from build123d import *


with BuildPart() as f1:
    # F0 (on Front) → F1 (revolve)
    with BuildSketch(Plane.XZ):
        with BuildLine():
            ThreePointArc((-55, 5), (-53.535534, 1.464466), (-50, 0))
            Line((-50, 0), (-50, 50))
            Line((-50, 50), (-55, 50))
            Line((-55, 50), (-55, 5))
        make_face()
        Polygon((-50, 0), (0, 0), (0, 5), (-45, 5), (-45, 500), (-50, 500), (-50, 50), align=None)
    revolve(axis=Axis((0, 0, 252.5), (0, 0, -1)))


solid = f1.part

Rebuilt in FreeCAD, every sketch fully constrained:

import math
import FreeCAD as App
import Part
import Sketcher
Q = App.Units.Quantity

doc = App.newDocument("Part")
params = doc.addObject("Spreadsheet::Sheet", "Params")
for row, (alias, value) in enumerate([
    ("sketch1_radius", "5 mm"),
    ("sketch1_width", "50 mm"),
    ("sketch1_height", "495 mm"),
    ("revolution_angle", "360 deg"),
], start=1):
    params.set(f"A{row}", alias)
    params.set(f"B{row}", "=" + value)
    params.setAlias(f"B{row}", alias)

body = doc.addObject("PartDesign::Body", "Body")

sketch1 = doc.addObject("Sketcher::SketchObject", "Sketch")
body.addObject(sketch1)
sketch1.AttachmentSupport = (doc.XZ_Plane, [""])
sketch1.MapMode = "FlatFace"
sketch1.addGeometry(Part.ArcOfCircle(Part.Circle(App.Vector(-50, 5, 0), App.Vector(0, 0, 1), 5), math.radians(180), math.radians(270)), False)
sketch1.addGeometry(Part.LineSegment(App.Vector(-50, 0, 0), App.Vector(0, 0, 0)), False)
sketch1.addGeometry(Part.LineSegment(App.Vector(0, 0, 0), App.Vector(0, 5, 0)), False)
sketch1.addGeometry(Part.LineSegment(App.Vector(0, 5, 0), App.Vector(-45, 5, 0)), False)
sketch1.addGeometry(Part.LineSegment(App.Vector(-45, 5, 0), App.Vector(-45, 500, 0)), False)
sketch1.addGeometry(Part.LineSegment(App.Vector(-45, 500, 0), App.Vector(-50, 500, 0)), False)
sketch1.addGeometry(Part.LineSegment(App.Vector(-50, 500, 0), App.Vector(-50, 50, 0)), False)
sketch1.addGeometry(Part.LineSegment(App.Vector(-50, 50, 0), App.Vector(-55, 50, 0)), False)
sketch1.addGeometry(Part.LineSegment(App.Vector(-55, 50, 0), App.Vector(-55, 5, 0)), False)
sketch1.addConstraint(Sketcher.Constraint("Tangent", 0, 2, 1, 1))
sketch1.addConstraint(Sketcher.Constraint("Coincident", 1, 2, 2, 1))
sketch1.addConstraint(Sketcher.Constraint("Coincident", 2, 2, 3, 1))
sketch1.addConstraint(Sketcher.Constraint("Coincident", 3, 2, 4, 1))
sketch1.addConstraint(Sketcher.Constraint("Coincident", 4, 2, 5, 1))
sketch1.addConstraint(Sketcher.Constraint("Coincident", 5, 2, 6, 1))
sketch1.addConstraint(Sketcher.Constraint("Coincident", 6, 2, 7, 1))
sketch1.addConstraint(Sketcher.Constraint("Coincident", 7, 2, 8, 1))
sketch1.addConstraint(Sketcher.Constraint("Tangent", 8, 2, 0, 1))
sketch1.addConstraint(Sketcher.Constraint("Horizontal", 1))
sketch1.addConstraint(Sketcher.Constraint("Vertical", 2))
sketch1.addConstraint(Sketcher.Constraint("Horizontal", 3))
sketch1.addConstraint(Sketcher.Constraint("Vertical", 4))
sketch1.addConstraint(Sketcher.Constraint("Horizontal", 5))
sketch1.addConstraint(Sketcher.Constraint("Vertical", 6))
sketch1.addConstraint(Sketcher.Constraint("Horizontal", 7))
sketch1.addConstraint(Sketcher.Constraint("Vertical", 8))
sketch1.addConstraint(Sketcher.Constraint("Coincident", 1, 2, -1, 1))
sketch1.addConstraint(Sketcher.Constraint("Horizontal", 0, 3, 2, 2))
sketch1.addConstraint(Sketcher.Constraint("Vertical", 0, 2, 5, 2))
sketch1.addConstraint(Sketcher.Constraint("Equal", 5, 7))
sketch1.addConstraint(Sketcher.Constraint("Equal", 3, 8))
sketch1.addConstraint(Sketcher.Constraint("Radius", 0, Q("5 mm")))
sketch1.addConstraint(Sketcher.Constraint("DistanceX", 1, 1, 1, 2, Q("50 mm")))
sketch1.addConstraint(Sketcher.Constraint("DistanceY", 4, 1, 4, 2, Q("495 mm")))
sketch1.setExpression("Constraints[22]", "Params.sketch1_radius")
sketch1.setExpression("Constraints[23]", "Params.sketch1_width")
sketch1.setExpression("Constraints[24]", "Params.sketch1_height")
revolution = doc.addObject("PartDesign::Revolution", "Revolution")
body.addObject(revolution)
revolution.Profile = sketch1
revolution.ReferenceAxis = (sketch1, ["V_Axis"])
revolution.setExpression("Angle", "Params.revolution_angle")

doc.recompute()
